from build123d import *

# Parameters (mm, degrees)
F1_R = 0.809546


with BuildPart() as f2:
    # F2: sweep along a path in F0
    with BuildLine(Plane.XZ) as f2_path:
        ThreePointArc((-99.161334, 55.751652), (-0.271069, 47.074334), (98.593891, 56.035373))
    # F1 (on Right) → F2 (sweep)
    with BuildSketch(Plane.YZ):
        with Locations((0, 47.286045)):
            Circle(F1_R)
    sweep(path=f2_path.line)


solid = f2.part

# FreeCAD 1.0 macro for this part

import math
import FreeCAD as App
import Part
import Sketcher

V = App.Vector

doc = App.newDocument("Part")
body = doc.addObject("PartDesign::Body", "Body")

sketch1 = doc.addObject("Sketcher::SketchObject", "Sketch")
body.addObject(sketch1)
sketch1.AttachmentSupport = (doc.YZ_Plane, [""])
sketch1.MapMode = "FlatFace"
sketch1.addGeometry(Part.Circle(V(0, 47.3, 0), V(0, 0, 1), 0.8), False)
sketch1.addConstraint([
    Sketcher.Constraint("PointOnObject", 0, 3, -2),
    Sketcher.Constraint("Diameter", 0, 1.619092),
    Sketcher.Constraint("DistanceY", -1, 1, 0, 3, 47.286045),
])

sketch2 = doc.addObject("Sketcher::SketchObject", "Sketch001")
body.addObject(sketch2)
sketch2.AttachmentSupport = (doc.XZ_Plane, [""])
sketch2.MapMode = "FlatFace"
sketch2.addGeometry(Part.ArcOfCircle(Part.Circle(V(-1, 606, 0), V(0, 0, 1), 559), math.radians(-100), math.radians(-80)), False)
sketch2.addConstraint([
    Sketcher.Constraint("Radius", 0, 558.701148),
    Sketcher.Constraint("DistanceX", 0, 3, -1, 1, 1.072641),
    Sketcher.Constraint("DistanceY", -1, 1, 0, 1, 55.751652),
    Sketcher.Constraint("DistanceX", -1, 1, 0, 2, 98.593891),
    Sketcher.Constraint("DistanceY", 0, 1, 0, 2, 0.283721),
])
doc.recompute()

additivepipe = doc.addObject("PartDesign::AdditivePipe", "AdditivePipe")
body.addObject(additivepipe)
additivepipe.Profile = sketch1
additivepipe.Spine = (sketch2, ["Edge1"])

doc.recompute()
